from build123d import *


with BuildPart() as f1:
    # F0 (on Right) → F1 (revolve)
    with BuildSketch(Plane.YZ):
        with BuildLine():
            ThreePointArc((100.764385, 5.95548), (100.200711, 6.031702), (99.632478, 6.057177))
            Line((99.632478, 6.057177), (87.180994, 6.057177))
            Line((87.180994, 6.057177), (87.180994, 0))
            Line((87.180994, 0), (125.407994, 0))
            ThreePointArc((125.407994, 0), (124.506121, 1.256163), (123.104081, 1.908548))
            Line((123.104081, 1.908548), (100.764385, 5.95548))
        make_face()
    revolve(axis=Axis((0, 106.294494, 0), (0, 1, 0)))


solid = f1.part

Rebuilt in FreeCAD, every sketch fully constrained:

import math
import FreeCAD as App
import Part
import Sketcher
from FreeCAD import Vector
Q = App.Units.Quantity

doc = App.newDocument("Part")
body = doc.addObject("PartDesign::Body", "Body")

sketch1 = body.newObject("Sketcher::SketchObject", "Sketch")
sketch1.AttachmentSupport = (doc.getObject("YZ_Plane"), [""])
sketch1.MapMode = "FlatFace"
sketch1.addGeometry(Part.ArcOfCircle(Part.Circle(Vector(99.632485, -0.292759, 0), Vector(0, 0, 1), 6.349936), math.radians(79.731941), math.radians(90.000067)), False)
sketch1.addGeometry(Part.LineSegment(Vector(99.632478, 6.057177, 0), Vector(87.180994, 6.057177, 0)), False)
sketch1.addGeometry(Part.LineSegment(Vector(87.180994, 6.057177, 0), Vector(87.180994, 0, 0)), False)
sketch1.addGeometry(Part.LineSegment(Vector(87.180994, 0, 0), Vector(125.407994, 0, 0)), False)
sketch1.addGeometry(Part.ArcOfCircle(Part.Circle(Vector(122.560408, -1.092614, 0), Vector(0, 0, 1), 3.050009), math.radians(20.991719), math.radians(79.731979)), False)
sketch1.addGeometry(Part.LineSegment(Vector(123.104081, 1.908548, 0), Vector(100.764385, 5.95548, 0)), False)
sketch1.addConstraint(Sketcher.Constraint("Coincident", 0, 2, 1, 1))
sketch1.addConstraint(Sketcher.Constraint("Coincident", 1, 2, 2, 1))
sketch1.addConstraint(Sketcher.Constraint("Coincident", 2, 2, 3, 1))
sketch1.addConstraint(Sketcher.Constraint("Coincident", 3, 2, 4, 1))
sketch1.addConstraint(Sketcher.Constraint("Coincident", 4, 2, 5, 1))
sketch1.addConstraint(Sketcher.Constraint("Coincident", 5, 2, 0, 1))
sketch1.addConstraint(Sketcher.Constraint("Horizontal", 1))
sketch1.addConstraint(Sketcher.Constraint("Vertical", 2))
sketch1.addConstraint(Sketcher.Constraint("Horizontal", 3))
sketch1.addConstraint(Sketcher.Constraint("PointOnObject", 2, 2, -1))
sketch1.addConstraint(Sketcher.Constraint("DistanceX", 3, 1, 3, 2, Q("1.505 in")))
sketch1.addConstraint(Sketcher.Constraint("Radius", 4, 3.050009))
sketch1.addConstraint(Sketcher.Constraint("Radius", 0, 6.349936))
sketch1.addConstraint(Sketcher.Constraint("DistanceX", 0, 3, 5, 2, 1.1319))
sketch1.addConstraint(Sketcher.Constraint("DistanceX", 1, 2, 1, 1, 12.451484))
sketch1.addConstraint(Sketcher.Constraint("DistanceY", 2, 2, 2, 1, 6.057177))
sketch1.addConstraint(Sketcher.Constraint("DistanceX", -1, 1, 0, 2, 99.632478))
sketch1.addConstraint(Sketcher.Constraint("DistanceX", -1, 1, 4, 2, 123.104081))
sketch1.addConstraint(Sketcher.Constraint("DistanceY", -1, 1, 4, 2, 1.908548))
sketch1.addConstraint(Sketcher.Constraint("DistanceX", 1, 2, 0, 3, 12.451491))
revolution = body.newObject("PartDesign::Revolution", "Revolution")
revolution.Profile = sketch1
revolution.ReferenceAxis = (sketch1, ["H_Axis"])
revolution.Angle = 360

doc.recompute()
